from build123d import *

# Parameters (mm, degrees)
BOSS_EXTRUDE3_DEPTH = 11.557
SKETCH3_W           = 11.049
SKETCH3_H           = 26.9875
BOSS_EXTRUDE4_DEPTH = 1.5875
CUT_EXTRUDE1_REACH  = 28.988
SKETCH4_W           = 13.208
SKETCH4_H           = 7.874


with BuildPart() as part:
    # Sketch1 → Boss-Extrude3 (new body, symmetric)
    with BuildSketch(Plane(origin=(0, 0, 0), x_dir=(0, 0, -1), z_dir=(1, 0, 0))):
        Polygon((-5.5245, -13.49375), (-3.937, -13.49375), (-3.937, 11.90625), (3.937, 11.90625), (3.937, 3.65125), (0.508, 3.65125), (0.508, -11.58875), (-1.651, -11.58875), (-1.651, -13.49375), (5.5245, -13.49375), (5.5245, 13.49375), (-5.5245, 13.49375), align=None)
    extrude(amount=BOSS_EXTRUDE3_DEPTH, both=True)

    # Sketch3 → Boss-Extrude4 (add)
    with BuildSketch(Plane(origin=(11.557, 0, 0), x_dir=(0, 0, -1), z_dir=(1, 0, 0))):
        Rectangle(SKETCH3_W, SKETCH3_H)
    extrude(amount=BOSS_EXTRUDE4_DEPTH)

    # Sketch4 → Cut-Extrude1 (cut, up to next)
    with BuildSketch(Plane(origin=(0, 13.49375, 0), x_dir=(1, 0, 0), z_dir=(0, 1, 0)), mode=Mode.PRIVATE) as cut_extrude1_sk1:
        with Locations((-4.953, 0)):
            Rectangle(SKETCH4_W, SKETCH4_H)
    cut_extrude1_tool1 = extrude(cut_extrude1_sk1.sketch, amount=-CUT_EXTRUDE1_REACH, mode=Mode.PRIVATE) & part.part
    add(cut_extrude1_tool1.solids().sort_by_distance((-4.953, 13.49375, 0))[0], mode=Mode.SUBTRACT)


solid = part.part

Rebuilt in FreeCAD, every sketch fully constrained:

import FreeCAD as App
import Part
import Sketcher
from FreeCAD import Vector
Q = App.Units.Quantity

doc = App.newDocument("Part")
body = doc.addObject("PartDesign::Body", "Body")

# Sketch on YZ plane
sketch1 = body.newObject("Sketcher::SketchObject", "Sketch")
sketch1.AttachmentSupport = (doc.getObject("YZ_Plane"), [""])
sketch1.MapMode = "FlatFace"
sketch1.addGeometry(Part.LineSegment(Vector(-13.49375, 5.5245, 0), Vector(-13.49375, 3.937, 0)), False)
sketch1.addGeometry(Part.LineSegment(Vector(-13.49375, 3.937, 0), Vector(11.90625, 3.937, 0)), False)
sketch1.addGeometry(Part.LineSegment(Vector(11.90625, 3.937, 0), Vector(11.90625, -3.937, 0)), False)
sketch1.addGeometry(Part.LineSegment(Vector(11.90625, -3.937, 0), Vector(3.65125, -3.937, 0)), False)
sketch1.addGeometry(Part.LineSegment(Vector(3.65125, -3.937, 0), Vector(3.65125, -0.508, 0)), False)
sketch1.addGeometry(Part.LineSegment(Vector(3.65125, -0.508, 0), Vector(-11.58875, -0.508, 0)), False)
sketch1.addGeometry(Part.LineSegment(Vector(-11.58875, -0.508, 0), Vector(-11.58875, 1.651, 0)), False)
sketch1.addGeometry(Part.LineSegment(Vector(-11.58875, 1.651, 0), Vector(-13.49375, 1.651, 0)), False)
sketch1.addGeometry(Part.LineSegment(Vector(-13.49375, 1.651, 0), Vector(-13.49375, -5.5245, 0)), False)
sketch1.addGeometry(Part.LineSegment(Vector(-13.49375, -5.5245, 0), Vector(13.49375, -5.5245, 0)), False)
sketch1.addGeometry(Part.LineSegment(Vector(13.49375, -5.5245, 0), Vector(13.49375, 5.5245, 0)), False)
sketch1.addGeometry(Part.LineSegment(Vector(13.49375, 5.5245, 0), Vector(-13.49375, 5.5245, 0)), False)
sketch1.addConstraint(Sketcher.Constraint("Coincident", 0, 2, 1, 1))
sketch1.addConstraint(Sketcher.Constraint("Coincident", 1, 2, 2, 1))
sketch1.addConstraint(Sketcher.Constraint("Coincident", 2, 2, 3, 1))
sketch1.addConstraint(Sketcher.Constraint("Coincident", 3, 2, 4, 1))
sketch1.addConstraint(Sketcher.Constraint("Coincident", 4, 2, 5, 1))
sketch1.addConstraint(Sketcher.Constraint("Coincident", 5, 2, 6, 1))
sketch1.addConstraint(Sketcher.Constraint("Coincident", 6, 2, 7, 1))
sketch1.addConstraint(Sketcher.Constraint("Coincident", 7, 2, 8, 1))
sketch1.addConstraint(Sketcher.Constraint("Coincident", 8, 2, 9, 1))
sketch1.addConstraint(Sketcher.Constraint("Coincident", 9, 2, 10, 1))
sketch1.addConstraint(Sketcher.Constraint("Coincident", 10, 2, 11, 1))
sketch1.addConstraint(Sketcher.Constraint("Coincident", 11, 2, 0, 1))
sketch1.addConstraint(Sketcher.Constraint("Vertical", 0))
sketch1.addConstraint(Sketcher.Constraint("Horizontal", 1))
sketch1.addConstraint(Sketcher.Constraint("Vertical", 2))
sketch1.addConstraint(Sketcher.Constraint("Horizontal", 3))
sketch1.addConstraint(Sketcher.Constraint("Vertical", 4))
sketch1.addConstraint(Sketcher.Constraint("Horizontal", 5))
sketch1.addConstraint(Sketcher.Constraint("Vertical", 6))
sketch1.addConstraint(Sketcher.Constraint("Horizontal", 7))
sketch1.addConstraint(Sketcher.Constraint("Vertical", 8))
sketch1.addConstraint(Sketcher.Constraint("Horizontal", 9))
sketch1.addConstraint(Sketcher.Constraint("Vertical", 10))
sketch1.addConstraint(Sketcher.Constraint("Horizontal", 11))
sketch1.addConstraint(Sketcher.Constraint("Symmetric", 8, 2, 10, 2, -1, 1))
sketch1.addConstraint(Sketcher.Constraint("Vertical", 0, 2, 7, 2))
sketch1.addConstraint(Sketcher.Constraint("DistanceX", 1, 1, 1, 2, Q("1 in")))
sketch1.addConstraint(Sketcher.Constraint("DistanceX", 5, 2, 5, 1, Q("0.6 in")))
sketch1.addConstraint(Sketcher.Constraint("DistanceY", 2, 2, 2, 1, Q("0.31 in")))
sketch1.addConstraint(Sketcher.Constraint("DistanceX", 3, 2, 3, 1, Q("0.325 in")))
sketch1.addConstraint(Sketcher.Constraint("DistanceX", 9, 1, 9, 2, Q("1.0625 in")))
sketch1.addConstraint(Sketcher.Constraint("DistanceY", 0, 2, 0, 1, Q("0.0625 in")))
sketch1.addConstraint(Sketcher.Constraint("DistanceY", 4, 1, 4, 2, Q("0.135 in")))
sketch1.addConstraint(Sketcher.Constraint("DistanceY", 6, 1, 6, 2, Q("0.085 in")))
sketch1.addConstraint(Sketcher.Constraint("DistanceY", 10, 1, 10, 2, Q("0.435 in")))
pad1 = body.newObject("PartDesign::Pad", "Pad")
pad1.Profile = sketch1
pad1.Length = Q("0.91 in")
pad1.Midplane = True

# Sketch on YZ plane
sketch2 = body.newObject("Sketcher::SketchObject", "Sketch001")
sketch2.AttachmentSupport = (doc.getObject("YZ_Plane"), [""])
sketch2.MapMode = "FlatFace"
sketch2.AttachmentOffset = App.Placement(Vector(0, 0, 0.455 * 25.4), App.Rotation())
sketch2.addGeometry(Part.LineSegment(Vector(13.49375, 5.5245, 0), Vector(-13.49375, 5.5245, 0)), False)
sketch2.addGeometry(Part.LineSegment(Vector(-13.49375, 5.5245, 0), Vector(-13.49375, -5.5245, 0)), False)
sketch2.addGeometry(Part.LineSegment(Vector(-13.49375, -5.5245, 0), Vector(13.49375, -5.5245, 0)), False)
sketch2.addGeometry(Part.LineSegment(Vector(13.49375, -5.5245, 0), Vector(13.49375, 5.5245, 0)), False)
sketch2.addConstraint(Sketcher.Constraint("Coincident", 0, 2, 1, 1))
sketch2.addConstraint(Sketcher.Constraint("Coincident", 1, 2, 2, 1))
sketch2.addConstraint(Sketcher.Constraint("Coincident", 2, 2, 3, 1))
sketch2.addConstraint(Sketcher.Constraint("Coincident", 3, 2, 0, 1))
sketch2.addConstraint(Sketcher.Constraint("Horizontal", 0))
sketch2.addConstraint(Sketcher.Constraint("Vertical", 1))
sketch2.addConstraint(Sketcher.Constraint("Horizontal", 2))
sketch2.addConstraint(Sketcher.Constraint("Vertical", 3))
sketch2.addConstraint(Sketcher.Constraint("Symmetric", 0, 2, 2, 2, -1, 1))
sketch2.addConstraint(Sketcher.Constraint("DistanceX", 0, 2, 0, 1, Q("1.0625 in")))
sketch2.addConstraint(Sketcher.Constraint("DistanceY", 1, 2, 1, 1, Q("0.435 in")))
pad2 = body.newObject("PartDesign::Pad", "Pad001")
pad2.Profile = sketch2
pad2.Length = Q("0.0625 in")

# Sketch on XZ plane
sketch3 = body.newObject("Sketcher::SketchObject", "Sketch002")
sketch3.AttachmentSupport = (doc.getObject("XZ_Plane"), [""])
sketch3.MapMode = "FlatFace"
sketch3.AttachmentOffset = App.Placement(Vector(0, 0, -0.53125 * 25.4), App.Rotation())
sketch3.addGeometry(Part.LineSegment(Vector(-11.557, -3.937, 0), Vector(-11.557, 3.937, 0)), False)
sketch3.addGeometry(Part.LineSegment(Vector(-11.557, 3.937, 0), Vector(1.651, 3.937, 0)), False)
sketch3.addGeometry(Part.LineSegment(Vector(1.651, 3.937, 0), Vector(1.651, -3.937, 0)), False)
sketch3.addGeometry(Part.LineSegment(Vector(1.651, -3.937, 0), Vector(-11.557, -3.937, 0)), False)
sketch3.addConstraint(Sketcher.Constraint("Coincident", 0, 2, 1, 1))
sketch3.addConstraint(Sketcher.Constraint("Coincident", 1, 2, 2, 1))
sketch3.addConstraint(Sketcher.Constraint("Coincident", 2, 2, 3, 1))
sketch3.addConstraint(Sketcher.Constraint("Coincident", 3, 2, 0, 1))
sketch3.addConstraint(Sketcher.Constraint("Vertical", 0))
sketch3.addConstraint(Sketcher.Constraint("Horizontal", 1))
sketch3.addConstraint(Sketcher.Constraint("Vertical", 2))
sketch3.addConstraint(Sketcher.Constraint("Horizontal", 3))
sketch3.addConstraint(Sketcher.Constraint("DistanceX", 1, 1, 1, 2, Q("0.52 in")))
sketch3.addConstraint(Sketcher.Constraint("DistanceY", 0, 1, 0, 2, Q("0.31 in")))
sketch3.addConstraint(Sketcher.Constraint("DistanceX", 0, 2, -1, 1, Q("0.455 in")))
sketch3.addConstraint(Sketcher.Constraint("DistanceY", -1, 1, 0, 2, Q("0.155 in")))
pocket1 = body.newObject("PartDesign::Pocket", "Pocket")
pocket1.Profile = sketch3
pocket1.Type = "UpToFirst"
pocket1.Reversed = True

doc.recompute()
